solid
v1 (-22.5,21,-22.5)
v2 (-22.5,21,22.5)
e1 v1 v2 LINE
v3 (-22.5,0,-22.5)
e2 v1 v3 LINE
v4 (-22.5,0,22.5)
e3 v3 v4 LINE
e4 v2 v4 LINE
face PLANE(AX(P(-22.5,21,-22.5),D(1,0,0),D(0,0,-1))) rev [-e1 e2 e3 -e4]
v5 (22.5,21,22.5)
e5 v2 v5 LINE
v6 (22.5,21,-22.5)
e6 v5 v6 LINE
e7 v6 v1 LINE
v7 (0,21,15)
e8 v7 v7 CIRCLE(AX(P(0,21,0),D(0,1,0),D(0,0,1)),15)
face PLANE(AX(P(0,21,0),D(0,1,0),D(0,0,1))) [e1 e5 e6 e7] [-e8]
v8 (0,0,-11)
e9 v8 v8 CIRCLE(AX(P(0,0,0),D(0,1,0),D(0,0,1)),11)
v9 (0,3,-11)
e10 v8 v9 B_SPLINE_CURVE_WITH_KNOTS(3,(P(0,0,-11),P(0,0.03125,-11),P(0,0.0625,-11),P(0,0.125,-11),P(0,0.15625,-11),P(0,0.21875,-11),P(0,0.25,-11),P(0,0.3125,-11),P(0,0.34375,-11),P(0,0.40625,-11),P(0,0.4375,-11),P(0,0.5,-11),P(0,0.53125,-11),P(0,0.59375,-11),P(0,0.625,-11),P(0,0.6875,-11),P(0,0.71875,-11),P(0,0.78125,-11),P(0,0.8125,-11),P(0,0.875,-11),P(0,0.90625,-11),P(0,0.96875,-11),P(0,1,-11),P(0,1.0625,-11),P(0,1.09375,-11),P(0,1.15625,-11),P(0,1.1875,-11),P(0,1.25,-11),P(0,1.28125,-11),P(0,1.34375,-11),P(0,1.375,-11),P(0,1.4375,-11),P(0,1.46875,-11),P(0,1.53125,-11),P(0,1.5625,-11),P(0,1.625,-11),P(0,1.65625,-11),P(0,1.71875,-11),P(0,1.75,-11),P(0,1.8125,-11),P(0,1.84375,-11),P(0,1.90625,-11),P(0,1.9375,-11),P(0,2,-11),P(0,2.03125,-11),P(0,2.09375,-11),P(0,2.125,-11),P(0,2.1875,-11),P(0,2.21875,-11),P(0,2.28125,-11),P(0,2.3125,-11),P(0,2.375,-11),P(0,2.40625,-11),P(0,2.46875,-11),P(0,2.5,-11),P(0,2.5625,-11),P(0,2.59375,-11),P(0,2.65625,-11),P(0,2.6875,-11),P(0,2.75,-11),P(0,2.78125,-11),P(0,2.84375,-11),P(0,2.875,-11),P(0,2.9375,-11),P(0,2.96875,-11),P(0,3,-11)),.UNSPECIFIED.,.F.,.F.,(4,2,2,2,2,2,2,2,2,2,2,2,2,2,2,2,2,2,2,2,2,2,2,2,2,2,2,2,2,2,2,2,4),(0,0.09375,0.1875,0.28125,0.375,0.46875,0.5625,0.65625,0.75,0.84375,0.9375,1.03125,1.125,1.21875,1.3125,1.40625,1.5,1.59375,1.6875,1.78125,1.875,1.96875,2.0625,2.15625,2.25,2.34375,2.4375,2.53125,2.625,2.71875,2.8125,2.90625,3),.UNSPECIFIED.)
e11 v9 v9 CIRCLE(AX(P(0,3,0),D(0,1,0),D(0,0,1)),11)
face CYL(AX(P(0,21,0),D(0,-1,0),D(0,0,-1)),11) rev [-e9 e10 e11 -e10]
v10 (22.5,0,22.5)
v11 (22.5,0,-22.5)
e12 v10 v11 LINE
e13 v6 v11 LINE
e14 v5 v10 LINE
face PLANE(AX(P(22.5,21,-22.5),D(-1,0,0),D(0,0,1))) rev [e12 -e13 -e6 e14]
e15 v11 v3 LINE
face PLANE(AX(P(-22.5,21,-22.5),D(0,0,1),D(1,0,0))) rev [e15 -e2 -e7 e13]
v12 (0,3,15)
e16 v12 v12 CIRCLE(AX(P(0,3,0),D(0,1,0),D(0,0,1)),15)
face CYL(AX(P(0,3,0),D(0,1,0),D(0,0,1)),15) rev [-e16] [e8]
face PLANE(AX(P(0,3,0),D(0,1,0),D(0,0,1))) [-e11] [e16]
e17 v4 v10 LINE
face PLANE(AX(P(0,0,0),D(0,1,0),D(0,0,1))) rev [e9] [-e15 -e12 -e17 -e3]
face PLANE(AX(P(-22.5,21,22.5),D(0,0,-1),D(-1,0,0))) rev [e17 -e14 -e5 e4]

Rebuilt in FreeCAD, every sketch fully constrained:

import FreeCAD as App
import Part
import Sketcher
Q = App.Units.Quantity


def add_polygon(sketch, points):
    """Adds a closed chain of lines whose ends are joined by coincident constraints."""
    first, n = sketch.GeometryCount, len(points)
    for a, b in zip(points, points[1:] + points[:1]):
        sketch.addGeometry(Part.LineSegment(App.Vector(*a, 0), App.Vector(*b, 0)), False)
    for i in range(n):
        sketch.addConstraint(Sketcher.Constraint("Coincident", first + i, 2, first + (i + 1) % n, 1))

doc = App.newDocument("Part")
body = doc.addObject("PartDesign::Body", "Body")

sketch1 = doc.addObject("Sketcher::SketchObject", "Sketch")
body.addObject(sketch1)
sketch1.AttachmentSupport = (doc.XZ_Plane, [""])
sketch1.MapMode = "FlatFace"
add_polygon(sketch1, [(-22, -22), (-22, 22), (22, 22), (22, -22)])
sketch1.addGeometry(Part.Circle(App.Vector(0, 0, 0), App.Vector(0, 0, 1), 11), False)
sketch1.addConstraint(Sketcher.Constraint("Vertical", 0))
sketch1.addConstraint(Sketcher.Constraint("Horizontal", 1))
sketch1.addConstraint(Sketcher.Constraint("Vertical", 2))
sketch1.addConstraint(Sketcher.Constraint("Horizontal", 3))
sketch1.addConstraint(Sketcher.Constraint("Coincident", 4, 3, -1, 1))
sketch1.addConstraint(Sketcher.Constraint("Symmetric", 0, 2, 2, 2, -1, 1))
sketch1.addConstraint(Sketcher.Constraint("Equal", 3, 0))
sketch1.addConstraint(Sketcher.Constraint("Diameter", 4, Q("22 mm")))
sketch1.addConstraint(Sketcher.Constraint("DistanceX", 1, 1, 1, 2, Q("45 mm")))
pad1 = doc.addObject("PartDesign::Pad", "Pad")
body.addObject(pad1)
pad1.Profile = sketch1
pad1.Length = 21
pad1.Reversed = True

sketch2 = doc.addObject("Sketcher::SketchObject", "Sketch001")
body.addObject(sketch2)
sketch2.AttachmentSupport = (doc.XZ_Plane, [""])
sketch2.MapMode = "FlatFace"
sketch2.AttachmentOffset = App.Placement(App.Vector(0, 0, -21), App.Rotation())
sketch2.addGeometry(Part.Circle(App.Vector(0, 0, 0), App.Vector(0, 0, 1), 15), False)
sketch2.addConstraint(Sketcher.Constraint("Coincident", 0, 3, -1, 1))
sketch2.addConstraint(Sketcher.Constraint("Diameter", 0, Q("30 mm")))
pocket1 = doc.addObject("PartDesign::Pocket", "Pocket")
body.addObject(pocket1)
pocket1.Profile = sketch2
pocket1.Length = 18
pocket1.Reversed = True

doc.recompute()
